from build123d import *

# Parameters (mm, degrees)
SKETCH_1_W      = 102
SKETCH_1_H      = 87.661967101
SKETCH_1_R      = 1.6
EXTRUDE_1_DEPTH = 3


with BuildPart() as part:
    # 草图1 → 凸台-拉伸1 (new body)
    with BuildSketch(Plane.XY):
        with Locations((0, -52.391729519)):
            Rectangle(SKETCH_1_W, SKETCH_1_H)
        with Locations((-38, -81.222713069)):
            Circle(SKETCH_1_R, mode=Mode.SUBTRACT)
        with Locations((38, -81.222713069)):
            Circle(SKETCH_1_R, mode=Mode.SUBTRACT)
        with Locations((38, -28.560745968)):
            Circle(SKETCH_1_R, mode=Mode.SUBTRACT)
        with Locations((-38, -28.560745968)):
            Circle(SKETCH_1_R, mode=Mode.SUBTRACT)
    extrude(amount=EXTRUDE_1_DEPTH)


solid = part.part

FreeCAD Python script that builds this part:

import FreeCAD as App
import Part
import Sketcher
from FreeCAD import Vector

doc = App.newDocument("Part")
body = doc.addObject("PartDesign::Body", "Body")

# Sketch on XY plane
sketch1 = body.newObject("Sketcher::SketchObject", "Sketch")
sketch1.AttachmentSupport = (doc.getObject("XY_Plane"), [""])
sketch1.MapMode = "FlatFace"
sketch1.addGeometry([
    Part.LineSegment(Vector(-51, -8.6, 0), Vector(-51, -96.2, 0)),  # 0
    Part.LineSegment(Vector(-51, -96.2, 0), Vector(51, -96.2, 0)),  # 1
    Part.LineSegment(Vector(51, -96.2, 0), Vector(51, -8.6, 0)),  # 2
    Part.LineSegment(Vector(51, -8.6, 0), Vector(-51, -8.6, 0)),  # 3
    Part.Circle(Vector(-38, -81.2, 0), Vector(0, 0, 1), 1.6),  # 4
    Part.Circle(Vector(38, -81.2, 0), Vector(0, 0, 1), 1.6),  # 5
    Part.Circle(Vector(-38, -28.6, 0), Vector(0, 0, 1), 1.6),  # 6
    Part.Circle(Vector(38, -28.6, 0), Vector(0, 0, 1), 1.6),  # 7
], False)
sketch1.addConstraint([
    Sketcher.Constraint("Coincident", 0, 2, 1, 1),
    Sketcher.Constraint("Coincident", 1, 2, 2, 1),
    Sketcher.Constraint("Coincident", 2, 2, 3, 1),
    Sketcher.Constraint("Coincident", 3, 2, 0, 1),
    Sketcher.Constraint("Vertical", 0),
    Sketcher.Constraint("Horizontal", 1),
    Sketcher.Constraint("Vertical", 2),
    Sketcher.Constraint("Horizontal", 3),
    Sketcher.Constraint("Equal", 4, 5),
    Sketcher.Constraint("Equal", 5, 6),
    Sketcher.Constraint("Equal", 6, 7),
    Sketcher.Constraint("Symmetric", 4, 3, 5, 3, -2),
    Sketcher.Constraint("Symmetric", 6, 3, 7, 3, -2),
    Sketcher.Constraint("Vertical", 4, 3, 6, 3),
    Sketcher.Constraint("Diameter", 4, 3.2),
    Sketcher.Constraint("DistanceX", 1, 1, 1, 2, 102.0),
    Sketcher.Constraint("DistanceX", 4, 3, -1, 1, 38.0),
    Sketcher.Constraint("DistanceX", 0, 2, -1, 1, 51.0),
    Sketcher.Constraint("DistanceY", 0, 2, 4, 3, 15.0),
    Sketcher.Constraint("DistanceY", 7, 3, 2, 2, 20.0),
    Sketcher.Constraint("DistanceY", 0, 2, 0, 1, 87.661967),
    Sketcher.Constraint("DistanceY", 4, 3, -1, 1, 81.222713),
])
pad1 = body.newObject("PartDesign::Pad", "Pad")
pad1.Profile = sketch1
pad1.Length = 3

doc.recompute()
